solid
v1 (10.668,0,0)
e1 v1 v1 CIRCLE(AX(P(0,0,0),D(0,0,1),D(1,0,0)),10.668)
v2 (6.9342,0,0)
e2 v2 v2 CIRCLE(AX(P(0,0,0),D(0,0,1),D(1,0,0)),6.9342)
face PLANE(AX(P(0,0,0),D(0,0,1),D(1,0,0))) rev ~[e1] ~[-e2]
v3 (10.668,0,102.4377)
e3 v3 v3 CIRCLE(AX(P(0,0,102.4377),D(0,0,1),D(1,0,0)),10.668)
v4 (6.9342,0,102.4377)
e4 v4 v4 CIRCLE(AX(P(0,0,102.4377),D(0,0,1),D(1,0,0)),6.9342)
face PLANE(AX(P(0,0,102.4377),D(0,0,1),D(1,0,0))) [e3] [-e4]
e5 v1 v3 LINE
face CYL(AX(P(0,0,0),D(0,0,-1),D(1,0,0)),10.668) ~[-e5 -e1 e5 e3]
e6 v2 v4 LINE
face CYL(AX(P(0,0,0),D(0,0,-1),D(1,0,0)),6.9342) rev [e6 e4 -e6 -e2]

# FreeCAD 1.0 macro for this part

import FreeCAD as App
import Part
import Sketcher
from FreeCAD import Vector
Q = App.Units.Quantity

doc = App.newDocument("Part")
body = doc.addObject("PartDesign::Body", "Body")

sketch1 = body.newObject("Sketcher::SketchObject", "Sketch")
sketch1.AttachmentSupport = (doc.getObject("XY_Plane"), [""])
sketch1.MapMode = "FlatFace"
sketch1.addGeometry([
    Part.Circle(Vector(0, 0, 0), Vector(0, 0, 1), 11),
    Part.Circle(Vector(0, 0, 0), Vector(0, 0, 1), 7),
], False)
sketch1.addConstraint([
    Sketcher.Constraint("Coincident", 0, 3, -1, 1),
    Sketcher.Constraint("Coincident", 1, 3, -1, 1),
    Sketcher.Constraint("Diameter", 0, Q("0.84 in")),
    Sketcher.Constraint("Diameter", 1, Q("0.546 in")),
])
pad1 = body.newObject("PartDesign::Pad", "Pad")
pad1.Profile = sketch1
pad1.Length = 102.4377

doc.recompute()
